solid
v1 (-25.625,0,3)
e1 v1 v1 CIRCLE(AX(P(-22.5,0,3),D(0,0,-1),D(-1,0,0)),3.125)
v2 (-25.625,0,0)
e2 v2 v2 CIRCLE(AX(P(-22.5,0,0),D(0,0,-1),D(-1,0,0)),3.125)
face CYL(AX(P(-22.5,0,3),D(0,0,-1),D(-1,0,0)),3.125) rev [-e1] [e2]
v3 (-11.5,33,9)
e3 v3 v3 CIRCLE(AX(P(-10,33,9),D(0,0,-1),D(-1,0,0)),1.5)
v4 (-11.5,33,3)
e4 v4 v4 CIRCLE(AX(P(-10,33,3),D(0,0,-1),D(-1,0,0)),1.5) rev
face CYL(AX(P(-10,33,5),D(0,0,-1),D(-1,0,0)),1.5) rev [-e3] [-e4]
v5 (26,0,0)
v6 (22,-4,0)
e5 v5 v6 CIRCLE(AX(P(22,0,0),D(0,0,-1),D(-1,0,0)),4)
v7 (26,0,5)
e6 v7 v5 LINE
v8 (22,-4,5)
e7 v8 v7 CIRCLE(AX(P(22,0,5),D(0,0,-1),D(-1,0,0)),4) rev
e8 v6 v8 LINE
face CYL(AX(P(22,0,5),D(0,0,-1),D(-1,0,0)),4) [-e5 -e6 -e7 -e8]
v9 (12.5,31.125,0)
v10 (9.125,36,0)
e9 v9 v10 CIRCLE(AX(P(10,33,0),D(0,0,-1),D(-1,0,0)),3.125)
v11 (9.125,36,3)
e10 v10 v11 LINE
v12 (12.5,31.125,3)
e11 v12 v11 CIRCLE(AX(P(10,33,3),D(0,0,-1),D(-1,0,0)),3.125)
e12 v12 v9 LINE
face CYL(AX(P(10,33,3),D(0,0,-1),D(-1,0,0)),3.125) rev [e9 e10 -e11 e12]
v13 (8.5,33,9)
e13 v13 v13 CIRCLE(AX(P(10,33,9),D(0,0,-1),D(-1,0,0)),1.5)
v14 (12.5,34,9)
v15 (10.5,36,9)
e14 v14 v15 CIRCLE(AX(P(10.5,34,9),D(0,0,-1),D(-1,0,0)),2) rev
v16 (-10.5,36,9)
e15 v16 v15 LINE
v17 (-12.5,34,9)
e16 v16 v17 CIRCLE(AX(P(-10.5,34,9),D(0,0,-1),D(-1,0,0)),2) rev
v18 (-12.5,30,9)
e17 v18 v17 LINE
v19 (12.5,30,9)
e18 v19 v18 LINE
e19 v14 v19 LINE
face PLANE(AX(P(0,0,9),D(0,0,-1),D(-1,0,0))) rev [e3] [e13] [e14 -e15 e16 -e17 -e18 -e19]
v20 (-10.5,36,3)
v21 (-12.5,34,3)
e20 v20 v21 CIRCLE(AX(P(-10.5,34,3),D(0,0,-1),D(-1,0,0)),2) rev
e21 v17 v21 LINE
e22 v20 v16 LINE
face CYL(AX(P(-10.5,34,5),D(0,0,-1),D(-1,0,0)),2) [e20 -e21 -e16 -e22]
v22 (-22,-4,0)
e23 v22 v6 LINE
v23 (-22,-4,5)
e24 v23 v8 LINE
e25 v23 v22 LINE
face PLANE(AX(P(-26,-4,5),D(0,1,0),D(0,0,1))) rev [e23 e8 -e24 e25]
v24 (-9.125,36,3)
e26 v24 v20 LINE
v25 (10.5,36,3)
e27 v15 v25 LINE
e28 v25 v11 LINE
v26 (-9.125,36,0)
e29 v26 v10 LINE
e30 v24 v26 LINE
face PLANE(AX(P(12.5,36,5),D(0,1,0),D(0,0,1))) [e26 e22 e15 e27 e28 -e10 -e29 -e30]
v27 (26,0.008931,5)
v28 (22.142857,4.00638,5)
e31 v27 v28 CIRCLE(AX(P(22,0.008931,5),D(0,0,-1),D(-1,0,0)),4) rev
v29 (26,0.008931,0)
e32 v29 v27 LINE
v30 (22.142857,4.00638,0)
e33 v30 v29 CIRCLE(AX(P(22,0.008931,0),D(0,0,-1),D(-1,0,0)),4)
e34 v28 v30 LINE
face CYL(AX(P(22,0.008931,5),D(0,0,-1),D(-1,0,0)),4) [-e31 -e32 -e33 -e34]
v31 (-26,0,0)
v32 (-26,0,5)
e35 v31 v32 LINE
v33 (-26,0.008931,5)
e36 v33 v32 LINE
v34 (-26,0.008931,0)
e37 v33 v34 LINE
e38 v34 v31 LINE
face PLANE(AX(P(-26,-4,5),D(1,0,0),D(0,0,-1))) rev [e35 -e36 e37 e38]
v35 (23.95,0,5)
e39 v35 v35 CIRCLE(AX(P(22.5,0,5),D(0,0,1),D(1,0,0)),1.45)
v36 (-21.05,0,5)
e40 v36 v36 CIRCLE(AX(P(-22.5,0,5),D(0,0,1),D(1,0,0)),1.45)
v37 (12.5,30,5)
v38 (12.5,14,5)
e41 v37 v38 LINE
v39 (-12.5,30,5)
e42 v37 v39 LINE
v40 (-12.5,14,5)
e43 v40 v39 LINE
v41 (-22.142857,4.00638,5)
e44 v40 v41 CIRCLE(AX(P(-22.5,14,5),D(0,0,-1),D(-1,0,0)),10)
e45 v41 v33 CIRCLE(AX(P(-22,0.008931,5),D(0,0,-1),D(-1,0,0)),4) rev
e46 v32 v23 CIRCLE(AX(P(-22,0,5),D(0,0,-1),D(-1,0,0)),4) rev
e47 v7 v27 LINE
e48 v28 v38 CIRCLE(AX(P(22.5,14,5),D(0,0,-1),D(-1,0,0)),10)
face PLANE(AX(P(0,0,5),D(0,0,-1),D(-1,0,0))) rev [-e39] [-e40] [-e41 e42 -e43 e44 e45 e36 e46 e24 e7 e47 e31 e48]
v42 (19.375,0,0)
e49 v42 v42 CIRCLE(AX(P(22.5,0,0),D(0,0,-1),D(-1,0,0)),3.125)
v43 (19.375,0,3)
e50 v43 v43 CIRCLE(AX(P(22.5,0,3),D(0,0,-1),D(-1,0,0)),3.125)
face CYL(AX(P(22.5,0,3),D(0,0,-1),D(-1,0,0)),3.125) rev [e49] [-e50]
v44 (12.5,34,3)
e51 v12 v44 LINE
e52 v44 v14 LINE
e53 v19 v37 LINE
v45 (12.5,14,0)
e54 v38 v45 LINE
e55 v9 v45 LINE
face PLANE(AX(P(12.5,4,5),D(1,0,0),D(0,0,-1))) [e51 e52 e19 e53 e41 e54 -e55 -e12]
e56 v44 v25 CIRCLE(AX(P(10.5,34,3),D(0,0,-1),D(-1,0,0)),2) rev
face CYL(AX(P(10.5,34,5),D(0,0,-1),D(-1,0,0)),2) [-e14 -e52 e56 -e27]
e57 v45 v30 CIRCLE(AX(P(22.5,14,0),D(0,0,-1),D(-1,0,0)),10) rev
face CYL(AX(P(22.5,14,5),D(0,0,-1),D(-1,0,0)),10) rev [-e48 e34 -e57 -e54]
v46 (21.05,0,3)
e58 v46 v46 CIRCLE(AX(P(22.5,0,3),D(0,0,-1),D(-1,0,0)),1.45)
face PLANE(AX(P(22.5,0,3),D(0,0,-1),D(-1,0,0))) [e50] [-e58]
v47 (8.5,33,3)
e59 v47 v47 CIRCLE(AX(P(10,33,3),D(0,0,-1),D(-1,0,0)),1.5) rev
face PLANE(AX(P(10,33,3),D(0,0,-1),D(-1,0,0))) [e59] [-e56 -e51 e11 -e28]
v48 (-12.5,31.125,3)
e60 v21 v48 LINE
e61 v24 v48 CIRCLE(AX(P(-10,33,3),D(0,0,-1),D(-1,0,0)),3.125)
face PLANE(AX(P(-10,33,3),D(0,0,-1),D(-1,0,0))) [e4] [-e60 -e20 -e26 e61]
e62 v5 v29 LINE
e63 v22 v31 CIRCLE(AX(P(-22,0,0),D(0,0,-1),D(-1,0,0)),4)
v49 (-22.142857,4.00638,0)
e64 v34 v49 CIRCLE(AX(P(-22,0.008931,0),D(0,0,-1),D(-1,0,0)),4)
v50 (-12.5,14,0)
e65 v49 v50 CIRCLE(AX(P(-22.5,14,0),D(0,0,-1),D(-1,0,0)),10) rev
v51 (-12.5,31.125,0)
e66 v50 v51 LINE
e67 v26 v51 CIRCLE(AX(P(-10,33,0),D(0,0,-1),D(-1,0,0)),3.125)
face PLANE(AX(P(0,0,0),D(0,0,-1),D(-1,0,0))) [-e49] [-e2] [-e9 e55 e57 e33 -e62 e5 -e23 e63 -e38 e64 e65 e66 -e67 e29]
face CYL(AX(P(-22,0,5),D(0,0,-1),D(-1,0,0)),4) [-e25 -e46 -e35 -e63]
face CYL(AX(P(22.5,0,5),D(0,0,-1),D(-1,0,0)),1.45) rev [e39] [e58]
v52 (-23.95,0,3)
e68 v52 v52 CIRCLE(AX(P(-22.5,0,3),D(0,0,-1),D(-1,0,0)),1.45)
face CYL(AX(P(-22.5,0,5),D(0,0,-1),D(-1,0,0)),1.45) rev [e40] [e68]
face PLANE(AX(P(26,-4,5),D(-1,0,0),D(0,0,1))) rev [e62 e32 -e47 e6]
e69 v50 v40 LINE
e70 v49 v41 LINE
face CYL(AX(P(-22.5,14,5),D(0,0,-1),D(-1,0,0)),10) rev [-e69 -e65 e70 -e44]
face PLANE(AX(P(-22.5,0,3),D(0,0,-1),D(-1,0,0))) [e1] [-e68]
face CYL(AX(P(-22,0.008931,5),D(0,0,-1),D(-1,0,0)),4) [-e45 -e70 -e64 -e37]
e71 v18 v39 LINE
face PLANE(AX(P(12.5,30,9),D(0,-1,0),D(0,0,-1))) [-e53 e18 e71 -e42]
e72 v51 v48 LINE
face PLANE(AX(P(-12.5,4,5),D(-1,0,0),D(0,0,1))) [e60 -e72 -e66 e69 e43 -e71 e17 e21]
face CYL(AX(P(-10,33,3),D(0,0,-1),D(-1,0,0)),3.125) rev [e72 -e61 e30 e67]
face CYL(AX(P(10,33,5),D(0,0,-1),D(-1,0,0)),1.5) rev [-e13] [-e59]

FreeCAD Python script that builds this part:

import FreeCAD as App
import Part
import Sketcher

V = App.Vector
Q = App.Units.Quantity


def edges_at(feature, points):
    """Names of the edges that pass closest to the given points."""
    edges = feature.Shape.Edges
    near = lambda p: min(range(len(edges)), key=lambda i: edges[i].distToShape(Part.Vertex(*p))[0])
    return sorted({f"Edge{near(p) + 1}" for p in points})

doc = App.newDocument("Part")
body = doc.addObject("PartDesign::Body", "Body")

# Sketch on XY plane
sketch1 = doc.addObject("Sketcher::SketchObject", "Sketch")
body.addObject(sketch1)
sketch1.AttachmentSupport = (doc.XY_Plane, [""])
sketch1.MapMode = "FlatFace"
sketch1.addGeometry([
    Part.LineSegment(V(-26, 4, 0), V(-26, -4, 0)),  # 0
    Part.LineSegment(V(-26, -4, 0), V(26, -4, 0)),  # 1
    Part.LineSegment(V(26, -4, 0), V(26, 4, 0)),  # 2
    Part.LineSegment(V(26, 4, 0), V(-26, 4, 0)),  # 3
    Part.Circle(V(-22.5, 0, 0), V(0, 0, 1), 1.45),  # 4
    Part.Circle(V(22.5, 0, 0), V(0, 0, 1), 1.45),  # 5
], False)
sketch1.addConstraint([
    Sketcher.Constraint("Coincident", 0, 2, 1, 1),
    Sketcher.Constraint("Coincident", 1, 2, 2, 1),
    Sketcher.Constraint("Coincident", 2, 2, 3, 1),
    Sketcher.Constraint("Coincident", 3, 2, 0, 1),
    Sketcher.Constraint("Vertical", 0),
    Sketcher.Constraint("Horizontal", 1),
    Sketcher.Constraint("Vertical", 2),
    Sketcher.Constraint("Horizontal", 3),
    Sketcher.Constraint("Equal", 4, 5),
    Sketcher.Constraint("Symmetric", 4, 3, 5, 3, -1, 1),
    Sketcher.Constraint("Symmetric", 0, 2, 2, 2, -1, 1),
    Sketcher.Constraint("PointOnObject", 4, 3, -1),
    Sketcher.Constraint("Diameter", 4, Q("2.9 mm")),
    Sketcher.Constraint("DistanceX", 1, 1, 1, 2, Q("52 mm")),
    Sketcher.Constraint("DistanceY", 0, 2, 0, 1, Q("8 mm")),
    Sketcher.Constraint("DistanceX", 4, 3, 5, 3, Q("45 mm")),
])
pad1 = doc.addObject("PartDesign::Pad", "Pad")
body.addObject(pad1)
pad1.Profile = sketch1
pad1.Length = 5

# Sketch on XY plane
sketch2 = doc.addObject("Sketcher::SketchObject", "Sketch001")
body.addObject(sketch2)
sketch2.AttachmentSupport = (doc.XY_Plane, [""])
sketch2.MapMode = "FlatFace"
sketch2.addGeometry([
    Part.LineSegment(V(12.5, 36, 0), V(12.5, 4, 0)),  # 0
    Part.LineSegment(V(12.5, 4, 0), V(-12.5, 4, 0)),  # 1
    Part.LineSegment(V(-12.5, 4, 0), V(-12.5, 36, 0)),  # 2
    Part.LineSegment(V(-12.5, 36, 0), V(12.5, 36, 0)),  # 3
    Part.Circle(V(10, 33, 0), V(0, 0, 1), 1.5),  # 4
    Part.Circle(V(-10, 33, 0), V(0, 0, 1), 1.5),  # 5
], False)
sketch2.addConstraint([
    Sketcher.Constraint("Coincident", 0, 2, 1, 1),
    Sketcher.Constraint("Coincident", 1, 2, 2, 1),
    Sketcher.Constraint("Coincident", 2, 2, 3, 1),
    Sketcher.Constraint("Coincident", 3, 2, 0, 1),
    Sketcher.Constraint("Vertical", 0),
    Sketcher.Constraint("Horizontal", 1),
    Sketcher.Constraint("Vertical", 2),
    Sketcher.Constraint("Horizontal", 3),
    Sketcher.Constraint("Equal", 4, 5),
    Sketcher.Constraint("Symmetric", 4, 3, 5, 3, -2),
    Sketcher.Constraint("Diameter", 4, Q("3 mm")),
    Sketcher.Constraint("DistanceX", 1, 2, 1, 1, Q("25 mm")),
    Sketcher.Constraint("DistanceY", 0, 2, 0, 1, Q("32 mm")),
    Sketcher.Constraint("DistanceX", -1, 1, 4, 3, Q("10 mm")),
    Sketcher.Constraint("DistanceY", -1, 1, 4, 3, Q("33 mm")),
    Sketcher.Constraint("DistanceY", -1, 1, 0, 2, Q("4 mm")),
    Sketcher.Constraint("DistanceX", -1, 1, 0, 2, Q("12.5 mm")),
])
pad2 = doc.addObject("PartDesign::Pad", "Pad001")
body.addObject(pad2)
pad2.Profile = sketch2
pad2.Length = 5

# Sketch on XY plane
sketch3 = doc.addObject("Sketcher::SketchObject", "Sketch002")
body.addObject(sketch3)
sketch3.AttachmentSupport = (doc.XY_Plane, [""])
sketch3.MapMode = "FlatFace"
sketch3.AttachmentOffset = App.Placement(V(0, 0, 5), App.Rotation())
sketch3.addGeometry([
    Part.LineSegment(V(12.5, 36, 0), V(12.5, 30, 0)),  # 0
    Part.LineSegment(V(12.5, 30, 0), V(-12.5, 30, 0)),  # 1
    Part.LineSegment(V(-12.5, 30, 0), V(-12.5, 36, 0)),  # 2
    Part.LineSegment(V(-12.5, 36, 0), V(12.5, 36, 0)),  # 3
    Part.Circle(V(10, 33, 0), V(0, 0, 1), 1.5),  # 4
    Part.Circle(V(-10, 33, 0), V(0, 0, 1), 1.5),  # 5
], False)
sketch3.addConstraint([
    Sketcher.Constraint("Coincident", 0, 2, 1, 1),
    Sketcher.Constraint("Coincident", 1, 2, 2, 1),
    Sketcher.Constraint("Coincident", 2, 2, 3, 1),
    Sketcher.Constraint("Coincident", 3, 2, 0, 1),
    Sketcher.Constraint("Vertical", 0),
    Sketcher.Constraint("Horizontal", 1),
    Sketcher.Constraint("Vertical", 2),
    Sketcher.Constraint("Horizontal", 3),
    Sketcher.Constraint("Equal", 4, 5),
    Sketcher.Constraint("Symmetric", 4, 3, 5, 3, -2),
    Sketcher.Constraint("Diameter", 4, Q("3 mm")),
    Sketcher.Constraint("DistanceX", 1, 2, 1, 1, Q("25 mm")),
    Sketcher.Constraint("DistanceY", 0, 2, 0, 1, Q("6 mm")),
    Sketcher.Constraint("DistanceX", -1, 1, 4, 3, Q("10 mm")),
    Sketcher.Constraint("DistanceY", -1, 1, 4, 3, Q("33 mm")),
    Sketcher.Constraint("DistanceY", -1, 1, 0, 2, Q("30 mm")),
    Sketcher.Constraint("DistanceX", -1, 1, 0, 2, Q("12.5 mm")),
])
pad3 = doc.addObject("PartDesign::Pad", "Pad002")
body.addObject(pad3)
pad3.Profile = sketch3
pad3.Length = 4
doc.recompute()

fillet = doc.addObject("PartDesign::Fillet", "Fillet")
body.addObject(fillet)
fillet.Base = (pad3, edges_at(pad3, [(12.5, 4, 2.5), (-12.5, 4, 2.5)]))
fillet.Radius = 10
doc.recompute()

fillet2 = doc.addObject("PartDesign::Fillet", "Fillet001")
body.addObject(fillet2)
fillet2.Base = (fillet, edges_at(fillet, [
    (-26, -4, 2.5),
    (-26, 4, 2.5),
    (26, -4, 2.5),
    (26, 4, 2.5),
]))
fillet2.Radius = 4
doc.recompute()

fillet3 = doc.addObject("PartDesign::Fillet", "Fillet002")
body.addObject(fillet3)
fillet3.Base = (fillet2, edges_at(fillet2, [(12.5, 36, 4.5), (-12.5, 36, 4.5)]))
fillet3.Radius = 2

# Sketch on XY plane
sketch4 = doc.addObject("Sketcher::SketchObject", "Sketch003")
body.addObject(sketch4)
sketch4.AttachmentSupport = (doc.XY_Plane, [""])
sketch4.MapMode = "FlatFace"
sketch4.addGeometry([
    Part.Circle(V(10, 33, 0), V(0, 0, 1), 3.125),
    Part.Circle(V(-10, 33, 0), V(0, 0, 1), 3.125),
    Part.Circle(V(22.5, 0, 0), V(0, 0, 1), 3.125),
    Part.Circle(V(-22.5, 0, 0), V(0, 0, 1), 3.125),
], False)
sketch4.addConstraint([
    Sketcher.Constraint("Equal", 0, 1),
    Sketcher.Constraint("Equal", 1, 2),
    Sketcher.Constraint("Equal", 2, 3),
    Sketcher.Constraint("Symmetric", 2, 3, 3, 3, -1, 1),
    Sketcher.Constraint("Symmetric", 0, 3, 1, 3, -2),
    Sketcher.Constraint("PointOnObject", 2, 3, -1),
    Sketcher.Constraint("Diameter", 0, Q("6.25 mm")),
    Sketcher.Constraint("DistanceX", -1, 1, 0, 3, Q("10 mm")),
    Sketcher.Constraint("DistanceY", -1, 1, 0, 3, Q("33 mm")),
    Sketcher.Constraint("DistanceX", 3, 3, 2, 3, Q("45 mm")),
])
pocket1 = doc.addObject("PartDesign::Pocket", "Pocket")
body.addObject(pocket1)
pocket1.Profile = sketch4
pocket1.Length = 3
pocket1.Reversed = True

doc.recompute()
